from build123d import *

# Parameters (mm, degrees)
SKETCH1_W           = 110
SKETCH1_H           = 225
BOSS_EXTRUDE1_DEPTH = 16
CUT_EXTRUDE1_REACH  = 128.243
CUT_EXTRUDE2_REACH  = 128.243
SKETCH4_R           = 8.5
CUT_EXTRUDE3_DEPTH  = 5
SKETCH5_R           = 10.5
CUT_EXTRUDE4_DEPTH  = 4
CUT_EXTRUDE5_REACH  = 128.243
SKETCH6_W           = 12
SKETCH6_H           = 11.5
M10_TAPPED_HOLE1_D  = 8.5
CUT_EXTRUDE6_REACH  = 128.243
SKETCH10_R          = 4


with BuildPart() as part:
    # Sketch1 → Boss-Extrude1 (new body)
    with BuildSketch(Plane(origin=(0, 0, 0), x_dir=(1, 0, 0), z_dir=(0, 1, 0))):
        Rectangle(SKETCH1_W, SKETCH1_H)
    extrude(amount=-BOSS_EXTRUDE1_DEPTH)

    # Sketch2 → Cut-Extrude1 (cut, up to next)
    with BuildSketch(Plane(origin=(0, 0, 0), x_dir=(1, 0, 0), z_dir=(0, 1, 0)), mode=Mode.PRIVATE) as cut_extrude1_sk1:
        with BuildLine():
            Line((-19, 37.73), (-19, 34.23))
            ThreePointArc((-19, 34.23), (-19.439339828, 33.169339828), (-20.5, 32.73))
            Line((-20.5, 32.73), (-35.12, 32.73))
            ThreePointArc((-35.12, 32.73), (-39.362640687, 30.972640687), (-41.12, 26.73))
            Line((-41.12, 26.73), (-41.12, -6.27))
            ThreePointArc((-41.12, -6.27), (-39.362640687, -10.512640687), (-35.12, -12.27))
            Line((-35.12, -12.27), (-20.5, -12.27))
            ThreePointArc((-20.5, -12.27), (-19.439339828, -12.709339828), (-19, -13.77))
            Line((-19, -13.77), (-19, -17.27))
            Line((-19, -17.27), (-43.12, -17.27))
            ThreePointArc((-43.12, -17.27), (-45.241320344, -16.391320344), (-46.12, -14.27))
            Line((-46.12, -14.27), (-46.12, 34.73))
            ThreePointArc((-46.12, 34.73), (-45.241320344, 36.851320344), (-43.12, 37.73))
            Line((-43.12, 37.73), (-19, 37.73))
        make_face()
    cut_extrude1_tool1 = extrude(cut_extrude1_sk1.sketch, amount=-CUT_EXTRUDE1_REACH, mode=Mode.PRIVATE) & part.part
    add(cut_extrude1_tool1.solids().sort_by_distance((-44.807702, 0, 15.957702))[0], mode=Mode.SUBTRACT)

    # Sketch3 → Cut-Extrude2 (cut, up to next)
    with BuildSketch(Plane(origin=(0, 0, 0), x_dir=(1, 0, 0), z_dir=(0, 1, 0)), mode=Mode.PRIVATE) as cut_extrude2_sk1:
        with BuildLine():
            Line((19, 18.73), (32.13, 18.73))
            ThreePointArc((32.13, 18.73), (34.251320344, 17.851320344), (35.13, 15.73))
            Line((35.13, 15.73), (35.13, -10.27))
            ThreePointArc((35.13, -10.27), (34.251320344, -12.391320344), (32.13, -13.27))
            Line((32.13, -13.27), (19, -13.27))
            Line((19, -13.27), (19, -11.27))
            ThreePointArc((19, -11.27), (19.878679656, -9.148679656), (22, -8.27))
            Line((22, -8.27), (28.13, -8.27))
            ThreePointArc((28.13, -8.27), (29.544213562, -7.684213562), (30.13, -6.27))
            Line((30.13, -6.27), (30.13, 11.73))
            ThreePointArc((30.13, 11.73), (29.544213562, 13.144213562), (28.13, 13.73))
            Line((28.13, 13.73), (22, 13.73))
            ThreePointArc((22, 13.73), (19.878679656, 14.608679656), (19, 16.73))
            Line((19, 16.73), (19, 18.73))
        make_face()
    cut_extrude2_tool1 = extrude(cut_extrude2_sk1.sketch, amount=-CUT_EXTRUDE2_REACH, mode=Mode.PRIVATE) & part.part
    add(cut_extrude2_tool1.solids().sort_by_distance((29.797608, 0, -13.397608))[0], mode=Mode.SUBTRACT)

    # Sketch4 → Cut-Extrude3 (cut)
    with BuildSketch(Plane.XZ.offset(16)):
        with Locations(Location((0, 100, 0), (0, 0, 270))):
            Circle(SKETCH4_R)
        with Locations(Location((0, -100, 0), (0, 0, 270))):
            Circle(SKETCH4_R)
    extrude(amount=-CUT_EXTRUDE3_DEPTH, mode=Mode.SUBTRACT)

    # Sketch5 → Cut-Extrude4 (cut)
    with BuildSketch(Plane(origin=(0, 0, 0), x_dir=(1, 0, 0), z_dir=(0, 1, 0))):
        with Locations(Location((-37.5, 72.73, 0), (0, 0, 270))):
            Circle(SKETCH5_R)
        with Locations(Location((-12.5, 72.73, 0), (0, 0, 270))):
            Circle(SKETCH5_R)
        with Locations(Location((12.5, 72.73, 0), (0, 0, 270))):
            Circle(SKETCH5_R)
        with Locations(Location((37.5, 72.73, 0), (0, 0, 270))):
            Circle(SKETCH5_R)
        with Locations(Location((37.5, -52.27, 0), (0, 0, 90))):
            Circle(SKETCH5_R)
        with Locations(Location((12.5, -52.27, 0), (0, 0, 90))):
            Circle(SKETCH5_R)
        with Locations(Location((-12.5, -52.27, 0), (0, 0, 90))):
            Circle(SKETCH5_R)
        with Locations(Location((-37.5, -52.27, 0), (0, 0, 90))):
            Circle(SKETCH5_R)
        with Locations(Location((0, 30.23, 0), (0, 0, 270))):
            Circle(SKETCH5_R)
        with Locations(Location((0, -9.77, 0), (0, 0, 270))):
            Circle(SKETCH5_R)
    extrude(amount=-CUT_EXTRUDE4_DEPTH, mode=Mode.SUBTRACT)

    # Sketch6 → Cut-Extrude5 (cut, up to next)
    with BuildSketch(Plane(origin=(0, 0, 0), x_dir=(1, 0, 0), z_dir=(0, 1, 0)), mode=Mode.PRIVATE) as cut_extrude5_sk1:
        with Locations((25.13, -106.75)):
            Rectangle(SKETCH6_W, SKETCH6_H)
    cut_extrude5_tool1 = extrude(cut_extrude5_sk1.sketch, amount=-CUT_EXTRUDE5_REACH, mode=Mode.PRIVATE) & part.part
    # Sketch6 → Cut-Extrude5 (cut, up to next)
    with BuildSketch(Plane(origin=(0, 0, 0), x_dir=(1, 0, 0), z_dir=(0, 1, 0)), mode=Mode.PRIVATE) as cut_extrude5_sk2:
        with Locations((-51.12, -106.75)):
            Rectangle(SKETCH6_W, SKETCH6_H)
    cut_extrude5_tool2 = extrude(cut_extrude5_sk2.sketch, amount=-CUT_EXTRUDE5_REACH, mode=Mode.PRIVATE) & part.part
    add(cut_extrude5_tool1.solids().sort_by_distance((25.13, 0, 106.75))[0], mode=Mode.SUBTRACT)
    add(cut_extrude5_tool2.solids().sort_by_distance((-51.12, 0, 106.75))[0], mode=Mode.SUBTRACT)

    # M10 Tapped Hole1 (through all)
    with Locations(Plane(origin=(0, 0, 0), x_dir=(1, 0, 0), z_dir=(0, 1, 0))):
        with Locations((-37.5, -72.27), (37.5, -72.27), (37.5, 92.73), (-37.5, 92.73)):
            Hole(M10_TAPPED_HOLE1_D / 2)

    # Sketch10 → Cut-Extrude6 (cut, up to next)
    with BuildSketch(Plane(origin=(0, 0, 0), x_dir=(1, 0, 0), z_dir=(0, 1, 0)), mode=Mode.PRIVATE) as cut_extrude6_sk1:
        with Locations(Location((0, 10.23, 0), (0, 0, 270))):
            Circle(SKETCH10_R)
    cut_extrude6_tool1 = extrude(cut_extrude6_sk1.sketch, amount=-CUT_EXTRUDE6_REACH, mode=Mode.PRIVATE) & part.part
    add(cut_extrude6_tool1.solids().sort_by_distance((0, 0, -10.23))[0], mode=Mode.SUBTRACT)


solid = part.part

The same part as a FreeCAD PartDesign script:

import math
import FreeCAD as App
import Part
import Sketcher

V = App.Vector
Q = App.Units.Quantity

doc = App.newDocument("Part")
body = doc.addObject("PartDesign::Body", "Body")

# Sketch on XZ plane
sketch1 = body.newObject("Sketcher::SketchObject", "Sketch")
sketch1.AttachmentSupport = (doc.getObject("XZ_Plane"), [""])
sketch1.MapMode = "FlatFace"
sketch1.addGeometry(Part.LineSegment(V(-55, -112.5, 0), V(-55, 112.5, 0)), False)
sketch1.addGeometry(Part.LineSegment(V(-55, 112.5, 0), V(55, 112.5, 0)), False)
sketch1.addGeometry(Part.LineSegment(V(55, 112.5, 0), V(55, -112.5, 0)), False)
sketch1.addGeometry(Part.LineSegment(V(55, -112.5, 0), V(-55, -112.5, 0)), False)
sketch1.addConstraint(Sketcher.Constraint("Coincident", 0, 2, 1, 1))
sketch1.addConstraint(Sketcher.Constraint("Coincident", 1, 2, 2, 1))
sketch1.addConstraint(Sketcher.Constraint("Coincident", 2, 2, 3, 1))
sketch1.addConstraint(Sketcher.Constraint("Coincident", 3, 2, 0, 1))
sketch1.addConstraint(Sketcher.Constraint("Vertical", 0))
sketch1.addConstraint(Sketcher.Constraint("Horizontal", 1))
sketch1.addConstraint(Sketcher.Constraint("Vertical", 2))
sketch1.addConstraint(Sketcher.Constraint("Horizontal", 3))
sketch1.addConstraint(Sketcher.Constraint("Symmetric", 0, 2, 2, 2, -1, 1))
sketch1.addConstraint(Sketcher.Constraint("DistanceX", 1, 1, 1, 2, Q("110 mm")))
sketch1.addConstraint(Sketcher.Constraint("DistanceY", 0, 1, 0, 2, Q("225 mm")))
pad1 = body.newObject("PartDesign::Pad", "Pad")
pad1.Profile = sketch1
pad1.Length = 16

# Sketch on XZ plane
sketch2 = body.newObject("Sketcher::SketchObject", "Sketch001")
sketch2.AttachmentSupport = (doc.getObject("XZ_Plane"), [""])
sketch2.MapMode = "FlatFace"
sketch2.addGeometry(Part.LineSegment(V(-19, -34.23, 0), V(-19, -37.73, 0)), False)
sketch2.addGeometry(Part.LineSegment(V(-19, -37.73, 0), V(-43.12, -37.73, 0)), False)
sketch2.addGeometry(Part.ArcOfCircle(Part.Circle(V(-43.12, -34.73, 0), V(0, 0, 1), 3), math.radians(180), math.radians(270)), False)
sketch2.addGeometry(Part.LineSegment(V(-46.12, -34.73, 0), V(-46.12, 14.27, 0)), False)
sketch2.addGeometry(Part.ArcOfCircle(Part.Circle(V(-43.12, 14.27, 0), V(0, 0, 1), 3), math.radians(90), math.radians(180)), False)
sketch2.addGeometry(Part.LineSegment(V(-43.12, 17.27, 0), V(-19, 17.27, 0)), False)
sketch2.addGeometry(Part.LineSegment(V(-19, 17.27, 0), V(-19, 13.77, 0)), False)
sketch2.addGeometry(Part.ArcOfCircle(Part.Circle(V(-20.5, 13.77, 0), V(0, 0, 1), 1.5), math.radians(-90), math.radians(0)), False)
sketch2.addGeometry(Part.LineSegment(V(-20.5, 12.27, 0), V(-35.12, 12.27, 0)), False)
sketch2.addGeometry(Part.ArcOfCircle(Part.Circle(V(-35.12, 6.27, 0), V(0, 0, 1), 6), math.radians(90), math.radians(180)), False)
sketch2.addGeometry(Part.LineSegment(V(-41.12, 6.27, 0), V(-41.12, -26.73, 0)), False)
sketch2.addGeometry(Part.ArcOfCircle(Part.Circle(V(-35.12, -26.73, 0), V(0, 0, 1), 6), math.radians(180), math.radians(270)), False)
sketch2.addGeometry(Part.LineSegment(V(-35.12, -32.73, 0), V(-20.5, -32.73, 0)), False)
sketch2.addGeometry(Part.ArcOfCircle(Part.Circle(V(-20.5, -34.23, 0), V(0, 0, 1), 1.5), math.radians(0), math.radians(90)), False)
sketch2.addConstraint(Sketcher.Constraint("Coincident", 0, 2, 1, 1))
sketch2.addConstraint(Sketcher.Constraint("Tangent", 1, 2, 2, 2))
sketch2.addConstraint(Sketcher.Constraint("Tangent", 2, 1, 3, 1))
sketch2.addConstraint(Sketcher.Constraint("Tangent", 3, 2, 4, 2))
sketch2.addConstraint(Sketcher.Constraint("Tangent", 4, 1, 5, 1))
sketch2.addConstraint(Sketcher.Constraint("Coincident", 5, 2, 6, 1))
sketch2.addConstraint(Sketcher.Constraint("Tangent", 6, 2, 7, 2))
sketch2.addConstraint(Sketcher.Constraint("Tangent", 7, 1, 8, 1))
sketch2.addConstraint(Sketcher.Constraint("Tangent", 8, 2, 9, 1))
sketch2.addConstraint(Sketcher.Constraint("Tangent", 9, 2, 10, 1))
sketch2.addConstraint(Sketcher.Constraint("Tangent", 10, 2, 11, 1))
sketch2.addConstraint(Sketcher.Constraint("Tangent", 11, 2, 12, 1))
sketch2.addConstraint(Sketcher.Constraint("Tangent", 12, 2, 13, 2))
sketch2.addConstraint(Sketcher.Constraint("Tangent", 13, 1, 0, 1))
sketch2.addConstraint(Sketcher.Constraint("Vertical", 0))
sketch2.addConstraint(Sketcher.Constraint("Horizontal", 1))
sketch2.addConstraint(Sketcher.Constraint("Vertical", 3))
sketch2.addConstraint(Sketcher.Constraint("Horizontal", 5))
sketch2.addConstraint(Sketcher.Constraint("Vertical", 6))
sketch2.addConstraint(Sketcher.Constraint("Horizontal", 8))
sketch2.addConstraint(Sketcher.Constraint("Vertical", 10))
sketch2.addConstraint(Sketcher.Constraint("Horizontal", 12))
sketch2.addConstraint(Sketcher.Constraint("Equal", 2, 4))
sketch2.addConstraint(Sketcher.Constraint("Equal", 9, 11))
sketch2.addConstraint(Sketcher.Constraint("Equal", 7, 13))
sketch2.addConstraint(Sketcher.Constraint("Vertical", 7, 3, 13, 3))
sketch2.addConstraint(Sketcher.Constraint("Equal", 0, 6))
sketch2.addConstraint(Sketcher.Constraint("Radius", 2, Q("3 mm")))
sketch2.addConstraint(Sketcher.Constraint("Radius", 9, Q("6 mm")))
sketch2.addConstraint(Sketcher.Constraint("Radius", 7, Q("1.5 mm")))
sketch2.addConstraint(Sketcher.Constraint("DistanceY", 3, 1, 3, 2, Q("49 mm")))
sketch2.addConstraint(Sketcher.Constraint("DistanceY", 10, 2, 10, 1, Q("33 mm")))
sketch2.addConstraint(Sketcher.Constraint("DistanceX", 0, 2, -1, 1, Q("19 mm")))
sketch2.addConstraint(Sketcher.Constraint("DistanceX", 4, 3, 9, 3, Q("8 mm")))
sketch2.addConstraint(Sketcher.Constraint("DistanceX", 1, 2, 1, 1, Q("24.12 mm")))
sketch2.addConstraint(Sketcher.Constraint("DistanceY", 2, 3, -1, 1, Q("34.73 mm")))
pocket1 = body.newObject("PartDesign::Pocket", "Pocket")
pocket1.Profile = sketch2
pocket1.Type = "UpToFirst"
pocket1.Reversed = True

# Sketch on XZ plane
sketch3 = body.newObject("Sketcher::SketchObject", "Sketch002")
sketch3.AttachmentSupport = (doc.getObject("XZ_Plane"), [""])
sketch3.MapMode = "FlatFace"
sketch3.addGeometry(Part.LineSegment(V(32.13, -18.73, 0), V(19, -18.73, 0)), False)
sketch3.addGeometry(Part.LineSegment(V(19, -18.73, 0), V(19, -16.73, 0)), False)
sketch3.addGeometry(Part.ArcOfCircle(Part.Circle(V(22, -16.73, 0), V(0, 0, 1), 3), math.radians(90), math.radians(180)), False)
sketch3.addGeometry(Part.LineSegment(V(22, -13.73, 0), V(28.13, -13.73, 0)), False)
sketch3.addGeometry(Part.ArcOfCircle(Part.Circle(V(28.13, -11.73, 0), V(0, 0, 1), 2), math.radians(-90), math.radians(0)), False)
sketch3.addGeometry(Part.LineSegment(V(30.13, -11.73, 0), V(30.13, 6.27, 0)), False)
sketch3.addGeometry(Part.ArcOfCircle(Part.Circle(V(28.13, 6.27, 0), V(0, 0, 1), 2), math.radians(0), math.radians(90)), False)
sketch3.addGeometry(Part.LineSegment(V(28.13, 8.27, 0), V(22, 8.27, 0)), False)
sketch3.addGeometry(Part.ArcOfCircle(Part.Circle(V(22, 11.27, 0), V(0, 0, 1), 3), math.radians(180), math.radians(270)), False)
sketch3.addGeometry(Part.LineSegment(V(19, 11.27, 0), V(19, 13.27, 0)), False)
sketch3.addGeometry(Part.LineSegment(V(19, 13.27, 0), V(32.13, 13.27, 0)), False)
sketch3.addGeometry(Part.ArcOfCircle(Part.Circle(V(32.13, 10.27, 0), V(0, 0, 1), 3), math.radians(0), math.radians(90)), False)
sketch3.addGeometry(Part.LineSegment(V(35.13, 10.27, 0), V(35.13, -15.73, 0)), False)
sketch3.addGeometry(Part.ArcOfCircle(Part.Circle(V(32.13, -15.73, 0), V(0, 0, 1), 3), math.radians(-90), math.radians(0)), False)
sketch3.addConstraint(Sketcher.Constraint("Coincident", 0, 2, 1, 1))
sketch3.addConstraint(Sketcher.Constraint("Tangent", 1, 2, 2, 2))
sketch3.addConstraint(Sketcher.Constraint("Tangent", 2, 1, 3, 1))
sketch3.addConstraint(Sketcher.Constraint("Tangent", 3, 2, 4, 1))
sketch3.addConstraint(Sketcher.Constraint("Tangent", 4, 2, 5, 1))
sketch3.addConstraint(Sketcher.Constraint("Tangent", 5, 2, 6, 1))
sketch3.addConstraint(Sketcher.Constraint("Tangent", 6, 2, 7, 1))
sketch3.addConstraint(Sketcher.Constraint("Tangent", 7, 2, 8, 2))
sketch3.addConstraint(Sketcher.Constraint("Tangent", 8, 1, 9, 1))
sketch3.addConstraint(Sketcher.Constraint("Coincident", 9, 2, 10, 1))
sketch3.addConstraint(Sketcher.Constraint("Tangent", 10, 2, 11, 2))
sketch3.addConstraint(Sketcher.Constraint("Tangent", 11, 1, 12, 1))
sketch3.addConstraint(Sketcher.Constraint("Tangent", 12, 2, 13, 2))
sketch3.addConstraint(Sketcher.Constraint("Tangent", 13, 1, 0, 1))
sketch3.addConstraint(Sketcher.Constraint("Horizontal", 0))
sketch3.addConstraint(Sketcher.Constraint("Vertical", 1))
sketch3.addConstraint(Sketcher.Constraint("Horizontal", 3))
sketch3.addConstraint(Sketcher.Constraint("Vertical", 5))
sketch3.addConstraint(Sketcher.Constraint("Horizontal", 7))
sketch3.addConstraint(Sketcher.Constraint("Vertical", 9))
sketch3.addConstraint(Sketcher.Constraint("Horizontal", 10))
sketch3.addConstraint(Sketcher.Constraint("Vertical", 12))
sketch3.addConstraint(Sketcher.Constraint("Equal", 4, 6))
sketch3.addConstraint(Sketcher.Constraint("Equal", 2, 8))
sketch3.addConstraint(Sketcher.Constraint("Equal", 8, 11))
sketch3.addConstraint(Sketcher.Constraint("Equal", 11, 13))
sketch3.addConstraint(Sketcher.Constraint("Vertical", 2, 3, 8, 3))
sketch3.addConstraint(Sketcher.Constraint("Equal", 1, 9))
sketch3.addConstraint(Sketcher.Constraint("Radius", 2, Q("3 mm")))
sketch3.addConstraint(Sketcher.Constraint("Radius", 4, Q("2 mm")))
sketch3.addConstraint(Sketcher.Constraint("DistanceY", 1, 1, 1, 2, Q("2 mm")))
sketch3.addConstraint(Sketcher.Constraint("DistanceY", 5, 1, 5, 2, Q("18 mm")))
sketch3.addConstraint(Sketcher.Constraint("DistanceX", -1, 1, 2, 3, Q("22 mm")))
sketch3.addConstraint(Sketcher.Constraint("DistanceX", 6, 3, 11, 3, Q("4 mm")))
sketch3.addConstraint(Sketcher.Constraint("DistanceX", 0, 2, 0, 1, Q("13.13 mm")))
sketch3.addConstraint(Sketcher.Constraint("DistanceY", 2, 3, -1, 1, Q("16.73 mm")))
pocket2 = body.newObject("PartDesign::Pocket", "Pocket001")
pocket2.Profile = sketch3
pocket2.Type = "UpToFirst"
pocket2.Reversed = True

# Sketch on XZ plane
sketch4 = body.newObject("Sketcher::SketchObject", "Sketch003")
sketch4.AttachmentSupport = (doc.getObject("XZ_Plane"), [""])
sketch4.MapMode = "FlatFace"
sketch4.AttachmentOffset = App.Placement(V(0, 0, 16), App.Rotation())
sketch4.addGeometry(Part.Circle(V(0, 100, 0), V(0, 0, 1), 8.5), False)
sketch4.addGeometry(Part.Circle(V(0, -100, 0), V(0, 0, 1), 8.5), False)
sketch4.addConstraint(Sketcher.Constraint("Equal", 0, 1))
sketch4.addConstraint(Sketcher.Constraint("Symmetric", 0, 3, 1, 3, -1, 1))
sketch4.addConstraint(Sketcher.Constraint("PointOnObject", 0, 3, -2))
sketch4.addConstraint(Sketcher.Constraint("Diameter", 0, Q("17 mm")))
sketch4.addConstraint(Sketcher.Constraint("DistanceY", -1, 1, 0, 3, Q("100 mm")))
pocket3 = body.newObject("PartDesign::Pocket", "Pocket002")
pocket3.Profile = sketch4
pocket3.Length = 5

# Sketch on XZ plane
sketch5 = body.newObject("Sketcher::SketchObject", "Sketch004")
sketch5.AttachmentSupport = (doc.getObject("XZ_Plane"), [""])
sketch5.MapMode = "FlatFace"
sketch5.addGeometry(Part.Circle(V(-37.5, -72.73, 0), V(0, 0, 1), 10.5), False)
sketch5.addGeometry(Part.Circle(V(-12.5, -72.73, 0), V(0, 0, 1), 10.5), False)
sketch5.addGeometry(Part.Circle(V(12.5, -72.73, 0), V(0, 0, 1), 10.5), False)
sketch5.addGeometry(Part.Circle(V(37.5, -72.73, 0), V(0, 0, 1), 10.5), False)
sketch5.addGeometry(Part.Circle(V(37.5, 52.27, 0), V(0, 0, 1), 10.5), False)
sketch5.addGeometry(Part.Circle(V(12.5, 52.27, 0), V(0, 0, 1), 10.5), False)
sketch5.addGeometry(Part.Circle(V(-12.5, 52.27, 0), V(0, 0, 1), 10.5), False)
sketch5.addGeometry(Part.Circle(V(-37.5, 52.27, 0), V(0, 0, 1), 10.5), False)
sketch5.addGeometry(Part.Circle(V(0, -30.23, 0), V(0, 0, 1), 10.5), False)
sketch5.addGeometry(Part.Circle(V(0, 9.77, 0), V(0, 0, 1), 10.5), False)
sketch5.addConstraint(Sketcher.Constraint("Equal", 0, 1))
sketch5.addConstraint(Sketcher.Constraint("Equal", 1, 2))
sketch5.addConstraint(Sketcher.Constraint("Equal", 2, 3))
sketch5.addConstraint(Sketcher.Constraint("Equal", 3, 4))
sketch5.addConstraint(Sketcher.Constraint("Equal", 4, 5))
sketch5.addConstraint(Sketcher.Constraint("Equal", 5, 6))
sketch5.addConstraint(Sketcher.Constraint("Equal", 6, 7))
sketch5.addConstraint(Sketcher.Constraint("Equal", 7, 8))
sketch5.addConstraint(Sketcher.Constraint("Equal", 8, 9))
sketch5.addConstraint(Sketcher.Constraint("Symmetric", 1, 3, 2, 3, -2))
sketch5.addConstraint(Sketcher.Constraint("Symmetric", 0, 3, 3, 3, -2))
sketch5.addConstraint(Sketcher.Constraint("Symmetric", 5, 3, 6, 3, -2))
sketch5.addConstraint(Sketcher.Constraint("Symmetric", 4, 3, 7, 3, -2))
sketch5.addConstraint(Sketcher.Constraint("PointOnObject", 8, 3, -2))
sketch5.addConstraint(Sketcher.Constraint("PointOnObject", 9, 3, -2))
sketch5.addConstraint(Sketcher.Constraint("Horizontal", 0, 3, 1, 3))
sketch5.addConstraint(Sketcher.Constraint("Horizontal", 4, 3, 5, 3))
sketch5.addConstraint(Sketcher.Constraint("Vertical", 3, 3, 4, 3))
sketch5.addConstraint(Sketcher.Constraint("Vertical", 2, 3, 5, 3))
sketch5.addConstraint(Sketcher.Constraint("Diameter", 0, Q("21 mm")))
sketch5.addConstraint(Sketcher.Constraint("DistanceX", 0, 3, 1, 3, Q("25 mm")))
sketch5.addConstraint(Sketcher.Constraint("DistanceX", 1, 3, 2, 3, Q("25 mm")))
sketch5.addConstraint(Sketcher.Constraint("DistanceY", 3, 3, 4, 3, Q("125 mm")))
sketch5.addConstraint(Sketcher.Constraint("DistanceY", 8, 3, 9, 3, Q("40 mm")))
sketch5.addConstraint(Sketcher.Constraint("DistanceY", 1, 3, 8, 3, Q("42.5 mm")))
sketch5.addConstraint(Sketcher.Constraint("DistanceY", 0, 3, -1, 1, Q("72.73 mm")))
pocket4 = body.newObject("PartDesign::Pocket", "Pocket003")
pocket4.Profile = sketch5
pocket4.Length = 4
pocket4.Reversed = True

# Sketch on XZ plane
sketch6 = body.newObject("Sketcher::SketchObject", "Sketch005")
sketch6.AttachmentSupport = (doc.getObject("XZ_Plane"), [""])
sketch6.MapMode = "FlatFace"
sketch6.addGeometry(Part.LineSegment(V(19.13, 101, 0), V(19.13, 112.5, 0)), False)
sketch6.addGeometry(Part.LineSegment(V(19.13, 112.5, 0), V(31.13, 112.5, 0)), False)
sketch6.addGeometry(Part.LineSegment(V(31.13, 112.5, 0), V(31.13, 101, 0)), False)
sketch6.addGeometry(Part.LineSegment(V(31.13, 101, 0), V(19.13, 101, 0)), False)
sketch6.addConstraint(Sketcher.Constraint("Coincident", 0, 2, 1, 1))
sketch6.addConstraint(Sketcher.Constraint("Coincident", 1, 2, 2, 1))
sketch6.addConstraint(Sketcher.Constraint("Coincident", 2, 2, 3, 1))
sketch6.addConstraint(Sketcher.Constraint("Coincident", 3, 2, 0, 1))
sketch6.addConstraint(Sketcher.Constraint("Vertical", 0))
sketch6.addConstraint(Sketcher.Constraint("Horizontal", 1))
sketch6.addConstraint(Sketcher.Constraint("Vertical", 2))
sketch6.addConstraint(Sketcher.Constraint("Horizontal", 3))
sketch6.addConstraint(Sketcher.Constraint("DistanceX", 1, 1, 1, 2, Q("12 mm")))
sketch6.addConstraint(Sketcher.Constraint("DistanceY", 0, 1, 0, 2, Q("11.5 mm")))
sketch6.addConstraint(Sketcher.Constraint("DistanceY", -1, 1, 2, 2, Q("101 mm")))
sketch6.addConstraint(Sketcher.Constraint("DistanceX", -1, 1, 0, 2, Q("19.13 mm")))
pocket5 = body.newObject("PartDesign::Pocket", "Pocket004")
pocket5.Profile = sketch6
pocket5.Type = "UpToFirst"
pocket5.Reversed = True

# Sketch on XZ plane
sketch7 = body.newObject("Sketcher::SketchObject", "Sketch006")
sketch7.AttachmentSupport = (doc.getObject("XZ_Plane"), [""])
sketch7.MapMode = "FlatFace"
sketch7.addGeometry(Part.LineSegment(V(-57.12, 101, 0), V(-57.12, 112.5, 0)), False)
sketch7.addGeometry(Part.LineSegment(V(-57.12, 112.5, 0), V(-45.12, 112.5, 0)), False)
sketch7.addGeometry(Part.LineSegment(V(-45.12, 112.5, 0), V(-45.12, 101, 0)), False)
sketch7.addGeometry(Part.LineSegment(V(-45.12, 101, 0), V(-57.12, 101, 0)), False)
sketch7.addConstraint(Sketcher.Constraint("Coincident", 0, 2, 1, 1))
sketch7.addConstraint(Sketcher.Constraint("Coincident", 1, 2, 2, 1))
sketch7.addConstraint(Sketcher.Constraint("Coincident", 2, 2, 3, 1))
sketch7.addConstraint(Sketcher.Constraint("Coincident", 3, 2, 0, 1))
sketch7.addConstraint(Sketcher.Constraint("Vertical", 0))
sketch7.addConstraint(Sketcher.Constraint("Horizontal", 1))
sketch7.addConstraint(Sketcher.Constraint("Vertical", 2))
sketch7.addConstraint(Sketcher.Constraint("Horizontal", 3))
sketch7.addConstraint(Sketcher.Constraint("DistanceX", 1, 1, 1, 2, Q("12 mm")))
sketch7.addConstraint(Sketcher.Constraint("DistanceY", 0, 1, 0, 2, Q("11.5 mm")))
sketch7.addConstraint(Sketcher.Constraint("DistanceY", -1, 1, 2, 2, Q("101 mm")))
sketch7.addConstraint(Sketcher.Constraint("DistanceX", 0, 2, -1, 1, Q("57.12 mm")))
pocket6 = body.newObject("PartDesign::Pocket", "Pocket005")
pocket6.Profile = sketch7
pocket6.Type = "UpToFirst"
pocket6.Reversed = True

# Sketch on XZ plane
sketch8 = body.newObject("Sketcher::SketchObject", "Sketch007")
sketch8.AttachmentSupport = (doc.getObject("XZ_Plane"), [""])
sketch8.MapMode = "FlatFace"
sketch8.addGeometry(Part.Circle(V(-37.5, 72.27, 0), V(0, 0, 1), 4.25), False)
sketch8.addGeometry(Part.Circle(V(37.5, 72.27, 0), V(0, 0, 1), 4.25), False)
sketch8.addGeometry(Part.Circle(V(37.5, -92.73, 0), V(0, 0, 1), 4.25), False)
sketch8.addGeometry(Part.Circle(V(-37.5, -92.73, 0), V(0, 0, 1), 4.25), False)
sketch8.addConstraint(Sketcher.Constraint("Equal", 0, 1))
sketch8.addConstraint(Sketcher.Constraint("Equal", 1, 2))
sketch8.addConstraint(Sketcher.Constraint("Equal", 2, 3))
sketch8.addConstraint(Sketcher.Constraint("Symmetric", 0, 3, 1, 3, -2))
sketch8.addConstraint(Sketcher.Constraint("Symmetric", 2, 3, 3, 3, -2))
sketch8.addConstraint(Sketcher.Constraint("Vertical", 1, 3, 2, 3))
sketch8.addConstraint(Sketcher.Constraint("Diameter", 0, Q("8.5 mm")))
sketch8.addConstraint(Sketcher.Constraint("DistanceX", 0, 3, 1, 3, Q("75 mm")))
sketch8.addConstraint(Sketcher.Constraint("DistanceY", 2, 3, 1, 3, Q("165 mm")))
sketch8.addConstraint(Sketcher.Constraint("DistanceY", -1, 1, 0, 3, Q("72.27 mm")))
doc.recompute()
hole = body.newObject("PartDesign::Hole", "Hole")
hole.Profile = sketch8
hole.ThreadType = "None"
hole.Diameter = 8.5
hole.DepthType = "ThroughAll"
hole.Reversed = True

# Sketch on XZ plane
sketch9 = body.newObject("Sketcher::SketchObject", "Sketch008")
sketch9.AttachmentSupport = (doc.getObject("XZ_Plane"), [""])
sketch9.MapMode = "FlatFace"
sketch9.addGeometry(Part.Circle(V(0, -10.23, 0), V(0, 0, 1), 4), False)
sketch9.addConstraint(Sketcher.Constraint("PointOnObject", 0, 3, -2))
sketch9.addConstraint(Sketcher.Constraint("Diameter", 0, Q("8 mm")))
sketch9.addConstraint(Sketcher.Constraint("DistanceY", 0, 3, -1, 1, Q("10.23 mm")))
pocket7 = body.newObject("PartDesign::Pocket", "Pocket006")
pocket7.Profile = sketch9
pocket7.Type = "UpToFirst"
pocket7.Reversed = True

doc.recompute()
